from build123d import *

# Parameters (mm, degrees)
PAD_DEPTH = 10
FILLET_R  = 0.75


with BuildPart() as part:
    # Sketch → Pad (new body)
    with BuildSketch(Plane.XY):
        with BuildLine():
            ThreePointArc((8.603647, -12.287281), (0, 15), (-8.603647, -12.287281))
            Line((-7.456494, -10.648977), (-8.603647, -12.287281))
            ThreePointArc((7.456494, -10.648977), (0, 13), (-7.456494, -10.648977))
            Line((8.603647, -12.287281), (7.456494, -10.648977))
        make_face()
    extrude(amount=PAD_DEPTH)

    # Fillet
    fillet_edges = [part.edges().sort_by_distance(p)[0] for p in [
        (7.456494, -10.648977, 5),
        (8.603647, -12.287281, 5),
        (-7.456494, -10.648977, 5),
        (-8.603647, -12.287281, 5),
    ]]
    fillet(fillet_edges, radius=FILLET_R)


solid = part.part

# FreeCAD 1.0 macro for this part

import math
import FreeCAD as App
import Part
import Sketcher
Q = App.Units.Quantity


def edges_at(feature, points):
    """Names of the edges that pass closest to the given points."""
    edges = feature.Shape.Edges
    near = lambda p: min(range(len(edges)), key=lambda i: edges[i].distToShape(Part.Vertex(*p))[0])
    return sorted({f"Edge{near(p) + 1}" for p in points})

doc = App.newDocument("Part")
body = doc.addObject("PartDesign::Body", "Body")

sketch1 = doc.addObject("Sketcher::SketchObject", "Sketch")
body.addObject(sketch1)
sketch1.AttachmentSupport = (doc.XY_Plane, [""])
sketch1.MapMode = "FlatFace"
sketch1.addGeometry(Part.ArcOfCircle(Part.Circle(App.Vector(0, 0, 0), App.Vector(0, 0, 1), 15), math.radians(-54.999999), math.radians(234.999999)), False)
sketch1.addGeometry(Part.LineSegment(App.Vector(-8.603647, -12.287281, 0), App.Vector(-7.456494, -10.648977, 0)), False)
sketch1.addGeometry(Part.ArcOfCircle(Part.Circle(App.Vector(0, 0, 0), App.Vector(0, 0, 1), 13), math.radians(-54.999999), math.radians(234.999999)), False)
sketch1.addGeometry(Part.LineSegment(App.Vector(7.456494, -10.648977, 0), App.Vector(8.603647, -12.287281, 0)), False)
sketch1.addConstraint(Sketcher.Constraint("Coincident", 0, 2, 1, 1))
sketch1.addConstraint(Sketcher.Constraint("Coincident", 1, 2, 2, 2))
sketch1.addConstraint(Sketcher.Constraint("Coincident", 2, 1, 3, 1))
sketch1.addConstraint(Sketcher.Constraint("Coincident", 3, 2, 0, 1))
sketch1.addConstraint(Sketcher.Constraint("Coincident", 0, 3, -1, 1))
sketch1.addConstraint(Sketcher.Constraint("Coincident", 2, 3, -1, 1))
sketch1.addConstraint(Sketcher.Constraint("Horizontal", 1, 2, 2, 1))
sketch1.addConstraint(Sketcher.Constraint("Horizontal", 0, 2, 3, 2))
sketch1.addConstraint(Sketcher.Constraint("Radius", 0, 15.0))
sketch1.addConstraint(Sketcher.Constraint("Radius", 2, 13.0))
sketch1.addConstraint(Sketcher.Constraint("Angle", 1, Q("54.999996 deg")))
sketch1.addConstraint(Sketcher.Constraint("DistanceY", 0, 2, -1, 1, 12.287281))
pad1 = doc.addObject("PartDesign::Pad", "Pad")
body.addObject(pad1)
pad1.Profile = sketch1
pad1.Length = 10
doc.recompute()

fillet = doc.addObject("PartDesign::Fillet", "Fillet")
body.addObject(fillet)
fillet.Base = (pad1, edges_at(pad1, [
    (7.456, -10.649, 5),
    (8.604, -12.287, 5),
    (-7.456, -10.649, 5),
    (-8.604, -12.287, 5),
]))
fillet.Radius = 0.75

doc.recompute()
